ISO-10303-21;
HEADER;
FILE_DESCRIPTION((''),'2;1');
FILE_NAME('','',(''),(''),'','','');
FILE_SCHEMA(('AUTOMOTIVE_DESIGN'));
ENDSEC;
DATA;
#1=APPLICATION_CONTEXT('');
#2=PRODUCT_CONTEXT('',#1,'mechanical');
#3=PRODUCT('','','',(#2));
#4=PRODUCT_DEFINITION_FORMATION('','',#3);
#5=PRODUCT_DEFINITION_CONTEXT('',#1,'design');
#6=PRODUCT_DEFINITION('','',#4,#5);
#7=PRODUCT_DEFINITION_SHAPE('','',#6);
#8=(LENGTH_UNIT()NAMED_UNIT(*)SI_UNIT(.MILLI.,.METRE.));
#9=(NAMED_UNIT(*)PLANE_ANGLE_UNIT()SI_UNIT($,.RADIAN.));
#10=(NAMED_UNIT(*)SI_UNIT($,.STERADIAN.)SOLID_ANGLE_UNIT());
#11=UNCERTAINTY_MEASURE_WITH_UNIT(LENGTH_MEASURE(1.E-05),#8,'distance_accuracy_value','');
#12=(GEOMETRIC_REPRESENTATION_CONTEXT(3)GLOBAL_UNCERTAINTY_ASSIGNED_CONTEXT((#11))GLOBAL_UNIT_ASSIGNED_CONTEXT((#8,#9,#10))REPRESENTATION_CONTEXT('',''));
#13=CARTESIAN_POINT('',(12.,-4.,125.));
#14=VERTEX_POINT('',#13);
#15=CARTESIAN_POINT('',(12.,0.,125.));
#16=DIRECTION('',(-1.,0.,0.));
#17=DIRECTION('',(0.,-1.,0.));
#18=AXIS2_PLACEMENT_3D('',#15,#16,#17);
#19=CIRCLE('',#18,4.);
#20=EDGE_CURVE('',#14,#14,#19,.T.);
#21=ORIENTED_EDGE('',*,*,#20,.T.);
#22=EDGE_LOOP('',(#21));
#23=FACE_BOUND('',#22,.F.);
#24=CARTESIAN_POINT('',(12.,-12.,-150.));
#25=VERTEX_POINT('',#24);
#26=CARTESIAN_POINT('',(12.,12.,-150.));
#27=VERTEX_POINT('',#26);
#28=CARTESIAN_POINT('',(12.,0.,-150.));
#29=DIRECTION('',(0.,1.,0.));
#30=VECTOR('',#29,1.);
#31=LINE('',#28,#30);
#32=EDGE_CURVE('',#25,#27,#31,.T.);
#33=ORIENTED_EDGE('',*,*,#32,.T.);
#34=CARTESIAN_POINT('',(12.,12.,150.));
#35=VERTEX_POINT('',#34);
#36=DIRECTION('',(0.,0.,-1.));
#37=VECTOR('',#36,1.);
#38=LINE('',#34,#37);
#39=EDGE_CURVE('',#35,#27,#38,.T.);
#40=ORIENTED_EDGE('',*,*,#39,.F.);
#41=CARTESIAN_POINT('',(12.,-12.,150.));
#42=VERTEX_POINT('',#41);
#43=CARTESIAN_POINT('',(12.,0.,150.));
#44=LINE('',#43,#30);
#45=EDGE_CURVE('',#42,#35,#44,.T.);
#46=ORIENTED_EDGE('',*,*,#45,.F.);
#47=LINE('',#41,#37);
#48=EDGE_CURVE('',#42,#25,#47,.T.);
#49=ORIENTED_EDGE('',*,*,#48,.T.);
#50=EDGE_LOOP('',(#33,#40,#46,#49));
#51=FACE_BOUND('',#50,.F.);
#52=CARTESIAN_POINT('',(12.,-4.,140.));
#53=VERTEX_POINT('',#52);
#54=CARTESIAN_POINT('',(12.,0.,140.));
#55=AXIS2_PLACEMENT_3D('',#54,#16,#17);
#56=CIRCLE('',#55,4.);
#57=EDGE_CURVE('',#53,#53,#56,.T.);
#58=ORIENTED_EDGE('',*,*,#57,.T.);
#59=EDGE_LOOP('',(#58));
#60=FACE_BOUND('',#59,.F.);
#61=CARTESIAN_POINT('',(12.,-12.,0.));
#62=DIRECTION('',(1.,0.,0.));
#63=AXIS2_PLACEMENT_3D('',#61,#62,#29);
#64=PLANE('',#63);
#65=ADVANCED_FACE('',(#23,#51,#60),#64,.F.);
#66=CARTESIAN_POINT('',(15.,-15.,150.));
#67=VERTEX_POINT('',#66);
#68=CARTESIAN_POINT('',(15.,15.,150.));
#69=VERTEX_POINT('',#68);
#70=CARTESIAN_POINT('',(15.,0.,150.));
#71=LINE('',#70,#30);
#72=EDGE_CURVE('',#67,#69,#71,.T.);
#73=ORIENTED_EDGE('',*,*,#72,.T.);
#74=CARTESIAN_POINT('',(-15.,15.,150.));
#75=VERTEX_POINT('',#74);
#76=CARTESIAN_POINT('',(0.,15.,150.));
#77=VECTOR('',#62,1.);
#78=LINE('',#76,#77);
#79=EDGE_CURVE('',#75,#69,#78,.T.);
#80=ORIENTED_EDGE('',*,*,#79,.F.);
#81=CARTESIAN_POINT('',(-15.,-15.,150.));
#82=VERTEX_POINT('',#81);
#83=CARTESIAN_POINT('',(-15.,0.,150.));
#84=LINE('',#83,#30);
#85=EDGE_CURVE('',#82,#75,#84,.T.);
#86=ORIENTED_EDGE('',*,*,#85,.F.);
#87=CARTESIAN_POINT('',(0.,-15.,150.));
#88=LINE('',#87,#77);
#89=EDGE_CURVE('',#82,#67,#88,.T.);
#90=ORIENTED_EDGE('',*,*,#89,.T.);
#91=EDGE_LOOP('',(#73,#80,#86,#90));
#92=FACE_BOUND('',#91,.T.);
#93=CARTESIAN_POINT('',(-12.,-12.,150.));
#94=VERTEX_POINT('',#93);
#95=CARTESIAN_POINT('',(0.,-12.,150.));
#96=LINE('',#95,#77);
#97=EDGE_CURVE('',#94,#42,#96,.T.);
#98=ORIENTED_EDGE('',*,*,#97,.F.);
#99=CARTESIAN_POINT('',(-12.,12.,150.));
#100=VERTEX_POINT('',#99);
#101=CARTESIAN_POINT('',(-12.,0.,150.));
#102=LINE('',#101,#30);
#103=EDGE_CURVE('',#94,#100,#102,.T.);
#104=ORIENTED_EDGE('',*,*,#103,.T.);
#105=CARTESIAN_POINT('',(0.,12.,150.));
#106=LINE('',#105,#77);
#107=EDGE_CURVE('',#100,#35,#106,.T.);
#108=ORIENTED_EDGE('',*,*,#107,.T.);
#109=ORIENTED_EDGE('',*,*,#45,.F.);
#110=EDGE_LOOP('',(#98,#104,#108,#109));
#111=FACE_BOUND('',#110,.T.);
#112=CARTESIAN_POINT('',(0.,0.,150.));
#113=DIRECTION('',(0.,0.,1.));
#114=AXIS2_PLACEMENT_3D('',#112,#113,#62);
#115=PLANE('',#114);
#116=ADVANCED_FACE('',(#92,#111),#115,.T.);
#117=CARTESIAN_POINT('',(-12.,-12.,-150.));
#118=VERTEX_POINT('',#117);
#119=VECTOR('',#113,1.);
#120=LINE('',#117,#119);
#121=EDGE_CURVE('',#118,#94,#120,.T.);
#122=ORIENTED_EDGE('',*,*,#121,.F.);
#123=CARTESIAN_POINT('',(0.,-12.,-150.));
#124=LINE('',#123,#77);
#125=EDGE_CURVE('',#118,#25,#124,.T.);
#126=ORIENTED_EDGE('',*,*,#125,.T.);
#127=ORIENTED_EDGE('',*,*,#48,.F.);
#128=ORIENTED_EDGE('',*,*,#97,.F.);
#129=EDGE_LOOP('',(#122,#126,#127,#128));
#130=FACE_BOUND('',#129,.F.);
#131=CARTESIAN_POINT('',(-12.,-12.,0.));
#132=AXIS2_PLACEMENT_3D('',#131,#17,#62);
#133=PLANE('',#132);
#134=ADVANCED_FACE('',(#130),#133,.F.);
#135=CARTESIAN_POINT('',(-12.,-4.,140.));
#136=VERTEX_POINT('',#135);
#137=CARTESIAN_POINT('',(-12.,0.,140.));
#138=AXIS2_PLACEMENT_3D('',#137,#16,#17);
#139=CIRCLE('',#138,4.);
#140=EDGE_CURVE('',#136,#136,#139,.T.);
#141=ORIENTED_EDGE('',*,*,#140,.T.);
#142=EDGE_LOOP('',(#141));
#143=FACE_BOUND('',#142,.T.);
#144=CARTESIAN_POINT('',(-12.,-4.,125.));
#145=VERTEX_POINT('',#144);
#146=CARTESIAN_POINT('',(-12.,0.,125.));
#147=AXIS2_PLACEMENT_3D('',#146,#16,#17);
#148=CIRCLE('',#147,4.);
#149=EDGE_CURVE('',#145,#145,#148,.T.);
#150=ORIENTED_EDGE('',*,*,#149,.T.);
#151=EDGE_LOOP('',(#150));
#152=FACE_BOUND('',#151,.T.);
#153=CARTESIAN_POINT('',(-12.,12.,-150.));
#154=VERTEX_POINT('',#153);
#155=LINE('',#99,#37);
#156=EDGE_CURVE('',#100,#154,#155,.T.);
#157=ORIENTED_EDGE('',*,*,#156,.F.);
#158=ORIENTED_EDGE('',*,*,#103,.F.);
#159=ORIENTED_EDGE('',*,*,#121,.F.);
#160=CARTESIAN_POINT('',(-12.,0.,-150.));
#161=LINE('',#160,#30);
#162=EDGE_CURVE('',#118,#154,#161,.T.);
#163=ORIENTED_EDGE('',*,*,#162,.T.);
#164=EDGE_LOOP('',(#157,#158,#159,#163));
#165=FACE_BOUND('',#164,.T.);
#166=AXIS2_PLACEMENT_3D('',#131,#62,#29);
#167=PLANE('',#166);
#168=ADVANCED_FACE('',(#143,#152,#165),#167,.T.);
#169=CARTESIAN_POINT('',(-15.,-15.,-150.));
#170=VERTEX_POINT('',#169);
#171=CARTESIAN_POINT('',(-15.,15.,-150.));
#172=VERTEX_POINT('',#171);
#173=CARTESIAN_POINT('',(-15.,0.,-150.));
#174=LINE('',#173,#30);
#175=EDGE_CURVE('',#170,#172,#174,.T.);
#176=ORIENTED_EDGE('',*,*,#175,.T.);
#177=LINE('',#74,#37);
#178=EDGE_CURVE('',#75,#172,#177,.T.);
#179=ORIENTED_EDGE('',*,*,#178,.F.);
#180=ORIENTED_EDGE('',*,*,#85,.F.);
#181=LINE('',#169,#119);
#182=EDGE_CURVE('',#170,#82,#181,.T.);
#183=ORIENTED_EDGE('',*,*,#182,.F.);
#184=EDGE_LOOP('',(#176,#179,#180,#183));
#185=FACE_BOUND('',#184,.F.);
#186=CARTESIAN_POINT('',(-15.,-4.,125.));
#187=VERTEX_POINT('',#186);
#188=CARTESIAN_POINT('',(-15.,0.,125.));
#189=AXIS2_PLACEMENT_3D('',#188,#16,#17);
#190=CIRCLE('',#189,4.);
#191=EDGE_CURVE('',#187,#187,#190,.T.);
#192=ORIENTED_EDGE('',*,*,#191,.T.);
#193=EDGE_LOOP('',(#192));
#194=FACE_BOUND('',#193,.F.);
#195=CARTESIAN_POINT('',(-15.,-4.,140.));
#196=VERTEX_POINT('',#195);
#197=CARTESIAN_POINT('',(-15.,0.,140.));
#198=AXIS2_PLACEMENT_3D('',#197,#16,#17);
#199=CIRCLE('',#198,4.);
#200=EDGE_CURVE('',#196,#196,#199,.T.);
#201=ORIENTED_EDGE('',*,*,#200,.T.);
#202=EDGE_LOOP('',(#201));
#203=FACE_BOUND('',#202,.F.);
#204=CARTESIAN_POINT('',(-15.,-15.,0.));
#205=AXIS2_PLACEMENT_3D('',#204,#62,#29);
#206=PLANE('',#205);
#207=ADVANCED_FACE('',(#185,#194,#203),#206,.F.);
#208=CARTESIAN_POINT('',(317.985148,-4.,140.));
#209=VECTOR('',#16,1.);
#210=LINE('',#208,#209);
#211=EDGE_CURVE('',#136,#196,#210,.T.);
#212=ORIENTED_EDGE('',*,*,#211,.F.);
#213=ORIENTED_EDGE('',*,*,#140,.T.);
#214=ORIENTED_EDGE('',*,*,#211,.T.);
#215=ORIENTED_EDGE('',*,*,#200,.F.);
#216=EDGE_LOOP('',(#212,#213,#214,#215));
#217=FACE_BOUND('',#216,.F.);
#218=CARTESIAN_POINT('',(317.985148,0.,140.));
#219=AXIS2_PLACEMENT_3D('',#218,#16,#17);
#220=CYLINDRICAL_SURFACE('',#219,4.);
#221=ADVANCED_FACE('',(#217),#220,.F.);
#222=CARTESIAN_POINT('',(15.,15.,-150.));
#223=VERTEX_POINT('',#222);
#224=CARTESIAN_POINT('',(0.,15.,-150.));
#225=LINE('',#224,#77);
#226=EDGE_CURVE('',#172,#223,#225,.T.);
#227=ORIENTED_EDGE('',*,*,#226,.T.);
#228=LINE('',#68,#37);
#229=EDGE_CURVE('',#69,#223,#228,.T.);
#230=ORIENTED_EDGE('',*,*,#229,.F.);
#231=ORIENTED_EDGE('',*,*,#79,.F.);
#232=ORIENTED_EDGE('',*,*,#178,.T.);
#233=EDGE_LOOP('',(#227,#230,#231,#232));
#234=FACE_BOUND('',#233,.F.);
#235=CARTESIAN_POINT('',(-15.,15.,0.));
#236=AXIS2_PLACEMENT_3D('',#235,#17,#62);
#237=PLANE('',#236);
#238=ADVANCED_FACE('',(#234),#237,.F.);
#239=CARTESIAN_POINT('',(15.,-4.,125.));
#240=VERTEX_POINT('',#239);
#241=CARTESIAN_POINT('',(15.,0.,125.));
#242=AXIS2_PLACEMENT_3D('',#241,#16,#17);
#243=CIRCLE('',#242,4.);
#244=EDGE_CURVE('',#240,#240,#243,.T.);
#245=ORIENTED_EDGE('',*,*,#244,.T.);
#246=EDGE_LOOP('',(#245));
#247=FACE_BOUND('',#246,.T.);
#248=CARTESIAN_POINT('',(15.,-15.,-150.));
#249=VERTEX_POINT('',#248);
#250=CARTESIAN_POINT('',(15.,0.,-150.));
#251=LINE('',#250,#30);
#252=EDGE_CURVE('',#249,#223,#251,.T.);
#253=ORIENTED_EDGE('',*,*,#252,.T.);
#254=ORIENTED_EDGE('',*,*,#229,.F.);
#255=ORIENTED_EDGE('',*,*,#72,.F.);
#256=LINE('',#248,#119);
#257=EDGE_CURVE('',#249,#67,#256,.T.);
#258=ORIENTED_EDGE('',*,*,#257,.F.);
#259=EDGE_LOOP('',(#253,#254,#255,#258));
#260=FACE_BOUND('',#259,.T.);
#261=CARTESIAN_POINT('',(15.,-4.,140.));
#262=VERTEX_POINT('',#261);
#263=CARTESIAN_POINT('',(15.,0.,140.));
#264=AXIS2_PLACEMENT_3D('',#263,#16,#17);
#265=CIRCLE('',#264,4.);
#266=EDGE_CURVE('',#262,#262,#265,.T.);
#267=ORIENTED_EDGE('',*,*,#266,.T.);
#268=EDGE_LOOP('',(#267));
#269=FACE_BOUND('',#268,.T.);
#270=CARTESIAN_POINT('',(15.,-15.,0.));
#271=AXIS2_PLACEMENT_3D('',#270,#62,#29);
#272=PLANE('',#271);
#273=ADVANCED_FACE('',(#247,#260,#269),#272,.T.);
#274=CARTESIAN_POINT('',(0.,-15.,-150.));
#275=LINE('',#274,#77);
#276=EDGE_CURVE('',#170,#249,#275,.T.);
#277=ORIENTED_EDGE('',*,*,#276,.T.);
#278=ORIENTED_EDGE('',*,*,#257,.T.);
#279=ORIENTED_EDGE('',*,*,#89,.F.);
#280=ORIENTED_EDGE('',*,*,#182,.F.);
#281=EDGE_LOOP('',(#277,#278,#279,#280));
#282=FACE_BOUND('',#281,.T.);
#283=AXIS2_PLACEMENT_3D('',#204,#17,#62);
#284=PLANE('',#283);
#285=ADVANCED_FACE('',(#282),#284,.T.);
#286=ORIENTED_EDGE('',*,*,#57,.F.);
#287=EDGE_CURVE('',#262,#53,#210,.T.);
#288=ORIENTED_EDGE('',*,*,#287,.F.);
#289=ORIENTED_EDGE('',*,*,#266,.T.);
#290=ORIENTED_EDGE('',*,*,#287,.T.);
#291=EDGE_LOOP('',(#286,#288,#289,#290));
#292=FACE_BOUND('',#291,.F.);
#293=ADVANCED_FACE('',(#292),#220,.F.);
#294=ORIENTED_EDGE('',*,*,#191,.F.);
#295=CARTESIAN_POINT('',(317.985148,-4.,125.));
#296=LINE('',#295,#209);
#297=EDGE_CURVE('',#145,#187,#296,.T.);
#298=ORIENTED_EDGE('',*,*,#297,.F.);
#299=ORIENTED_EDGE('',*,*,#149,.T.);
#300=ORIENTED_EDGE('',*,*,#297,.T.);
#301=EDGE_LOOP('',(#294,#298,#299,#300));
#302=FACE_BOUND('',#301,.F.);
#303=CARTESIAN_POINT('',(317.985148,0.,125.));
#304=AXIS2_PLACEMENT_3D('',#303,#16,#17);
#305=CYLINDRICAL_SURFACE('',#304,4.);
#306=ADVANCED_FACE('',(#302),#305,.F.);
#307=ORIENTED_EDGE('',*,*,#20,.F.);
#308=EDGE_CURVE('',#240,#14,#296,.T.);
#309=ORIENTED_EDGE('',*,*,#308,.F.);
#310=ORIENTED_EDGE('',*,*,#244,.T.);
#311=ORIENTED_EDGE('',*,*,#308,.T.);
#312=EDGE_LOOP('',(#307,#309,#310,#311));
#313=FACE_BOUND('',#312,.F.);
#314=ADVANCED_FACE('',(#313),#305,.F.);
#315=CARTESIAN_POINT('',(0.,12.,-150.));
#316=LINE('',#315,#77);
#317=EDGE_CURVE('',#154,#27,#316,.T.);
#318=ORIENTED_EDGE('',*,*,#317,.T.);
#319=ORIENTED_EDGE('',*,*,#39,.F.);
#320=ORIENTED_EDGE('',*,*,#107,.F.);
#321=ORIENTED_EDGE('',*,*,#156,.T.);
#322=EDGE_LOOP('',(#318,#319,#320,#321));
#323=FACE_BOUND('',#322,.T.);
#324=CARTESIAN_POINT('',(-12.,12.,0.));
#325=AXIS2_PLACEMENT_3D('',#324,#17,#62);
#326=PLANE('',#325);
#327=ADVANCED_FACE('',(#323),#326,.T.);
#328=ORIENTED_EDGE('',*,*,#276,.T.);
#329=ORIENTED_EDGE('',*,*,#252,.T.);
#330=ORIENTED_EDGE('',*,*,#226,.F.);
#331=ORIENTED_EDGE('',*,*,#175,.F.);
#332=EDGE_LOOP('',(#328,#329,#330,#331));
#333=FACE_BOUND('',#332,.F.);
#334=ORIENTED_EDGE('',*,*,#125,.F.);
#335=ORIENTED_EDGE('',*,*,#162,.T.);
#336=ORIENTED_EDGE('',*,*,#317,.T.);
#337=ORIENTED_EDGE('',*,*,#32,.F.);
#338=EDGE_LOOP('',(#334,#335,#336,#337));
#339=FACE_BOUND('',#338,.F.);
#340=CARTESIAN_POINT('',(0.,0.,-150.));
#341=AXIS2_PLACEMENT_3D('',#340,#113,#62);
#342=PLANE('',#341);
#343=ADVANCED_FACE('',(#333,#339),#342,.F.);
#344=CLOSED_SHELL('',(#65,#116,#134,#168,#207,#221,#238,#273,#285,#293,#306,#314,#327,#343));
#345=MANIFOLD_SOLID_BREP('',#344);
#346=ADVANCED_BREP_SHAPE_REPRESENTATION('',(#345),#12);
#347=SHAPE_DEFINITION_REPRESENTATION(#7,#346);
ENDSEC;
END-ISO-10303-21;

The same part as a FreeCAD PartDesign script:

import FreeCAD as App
import Part
import Sketcher
from FreeCAD import Vector

doc = App.newDocument("Part")
body = doc.addObject("PartDesign::Body", "Body")

# Sketch on XY plane
sketch1 = doc.addObject("Sketcher::SketchObject", "Sketch")
body.addObject(sketch1)
sketch1.AttachmentSupport = (doc.XY_Plane, [""])
sketch1.MapMode = "FlatFace"
sketch1.addGeometry(Part.LineSegment(Vector(-15, 15, 0), Vector(-15, -15, 0)), False)
sketch1.addGeometry(Part.LineSegment(Vector(-15, -15, 0), Vector(15, -15, 0)), False)
sketch1.addGeometry(Part.LineSegment(Vector(15, -15, 0), Vector(15, 15, 0)), False)
sketch1.addGeometry(Part.LineSegment(Vector(15, 15, 0), Vector(-15, 15, 0)), False)
sketch1.addGeometry(Part.LineSegment(Vector(12, -12, 0), Vector(-12, -12, 0)), False)
sketch1.addGeometry(Part.LineSegment(Vector(-12, -12, 0), Vector(-12, 12, 0)), False)
sketch1.addGeometry(Part.LineSegment(Vector(-12, 12, 0), Vector(12, 12, 0)), False)
sketch1.addGeometry(Part.LineSegment(Vector(12, 12, 0), Vector(12, -12, 0)), False)
sketch1.addConstraint(Sketcher.Constraint("Coincident", 0, 2, 1, 1))
sketch1.addConstraint(Sketcher.Constraint("Coincident", 1, 2, 2, 1))
sketch1.addConstraint(Sketcher.Constraint("Coincident", 2, 2, 3, 1))
sketch1.addConstraint(Sketcher.Constraint("Coincident", 3, 2, 0, 1))
sketch1.addConstraint(Sketcher.Constraint("Coincident", 4, 2, 5, 1))
sketch1.addConstraint(Sketcher.Constraint("Coincident", 5, 2, 6, 1))
sketch1.addConstraint(Sketcher.Constraint("Coincident", 6, 2, 7, 1))
sketch1.addConstraint(Sketcher.Constraint("Coincident", 7, 2, 4, 1))
sketch1.addConstraint(Sketcher.Constraint("Vertical", 0))
sketch1.addConstraint(Sketcher.Constraint("Horizontal", 1))
sketch1.addConstraint(Sketcher.Constraint("Vertical", 2))
sketch1.addConstraint(Sketcher.Constraint("Horizontal", 3))
sketch1.addConstraint(Sketcher.Constraint("Horizontal", 4))
sketch1.addConstraint(Sketcher.Constraint("Vertical", 5))
sketch1.addConstraint(Sketcher.Constraint("Horizontal", 6))
sketch1.addConstraint(Sketcher.Constraint("Vertical", 7))
sketch1.addConstraint(Sketcher.Constraint("Symmetric", 0, 2, 2, 2, -1, 1))
sketch1.addConstraint(Sketcher.Constraint("Symmetric", 4, 2, 6, 2, -1, 1))
sketch1.addConstraint(Sketcher.Constraint("Equal", 3, 0))
sketch1.addConstraint(Sketcher.Constraint("Equal", 6, 5))
sketch1.addConstraint(Sketcher.Constraint("DistanceX", 1, 1, 1, 2, 30.0))
sketch1.addConstraint(Sketcher.Constraint("DistanceX", 4, 2, 4, 1, 24.0))
pad1 = doc.addObject("PartDesign::Pad", "Pad")
body.addObject(pad1)
pad1.Profile = sketch1
pad1.Length = 300
pad1.Midplane = True

# Sketch on YZ plane
sketch2 = doc.addObject("Sketcher::SketchObject", "Sketch001")
body.addObject(sketch2)
sketch2.AttachmentSupport = (doc.YZ_Plane, [""])
sketch2.MapMode = "FlatFace"
sketch2.AttachmentOffset = App.Placement(Vector(0, 0, 15), App.Rotation())
sketch2.addGeometry(Part.Circle(Vector(0, 140, 0), Vector(0, 0, 1), 4), False)
sketch2.addGeometry(Part.Circle(Vector(0, 125, 0), Vector(0, 0, 1), 4), False)
sketch2.addConstraint(Sketcher.Constraint("Equal", 0, 1))
sketch2.addConstraint(Sketcher.Constraint("PointOnObject", 0, 3, -2))
sketch2.addConstraint(Sketcher.Constraint("PointOnObject", 1, 3, -2))
sketch2.addConstraint(Sketcher.Constraint("Diameter", 0, 8.0))
sketch2.addConstraint(Sketcher.Constraint("DistanceY", -1, 1, 0, 3, 140.0))
sketch2.addConstraint(Sketcher.Constraint("DistanceY", -1, 1, 1, 3, 125.0))
doc.recompute()
hole = doc.addObject("PartDesign::Hole", "Hole")
body.addObject(hole)
hole.Profile = sketch2
hole.ThreadType = "None"
hole.Diameter = 8
hole.DepthType = "ThroughAll"

doc.recompute()
